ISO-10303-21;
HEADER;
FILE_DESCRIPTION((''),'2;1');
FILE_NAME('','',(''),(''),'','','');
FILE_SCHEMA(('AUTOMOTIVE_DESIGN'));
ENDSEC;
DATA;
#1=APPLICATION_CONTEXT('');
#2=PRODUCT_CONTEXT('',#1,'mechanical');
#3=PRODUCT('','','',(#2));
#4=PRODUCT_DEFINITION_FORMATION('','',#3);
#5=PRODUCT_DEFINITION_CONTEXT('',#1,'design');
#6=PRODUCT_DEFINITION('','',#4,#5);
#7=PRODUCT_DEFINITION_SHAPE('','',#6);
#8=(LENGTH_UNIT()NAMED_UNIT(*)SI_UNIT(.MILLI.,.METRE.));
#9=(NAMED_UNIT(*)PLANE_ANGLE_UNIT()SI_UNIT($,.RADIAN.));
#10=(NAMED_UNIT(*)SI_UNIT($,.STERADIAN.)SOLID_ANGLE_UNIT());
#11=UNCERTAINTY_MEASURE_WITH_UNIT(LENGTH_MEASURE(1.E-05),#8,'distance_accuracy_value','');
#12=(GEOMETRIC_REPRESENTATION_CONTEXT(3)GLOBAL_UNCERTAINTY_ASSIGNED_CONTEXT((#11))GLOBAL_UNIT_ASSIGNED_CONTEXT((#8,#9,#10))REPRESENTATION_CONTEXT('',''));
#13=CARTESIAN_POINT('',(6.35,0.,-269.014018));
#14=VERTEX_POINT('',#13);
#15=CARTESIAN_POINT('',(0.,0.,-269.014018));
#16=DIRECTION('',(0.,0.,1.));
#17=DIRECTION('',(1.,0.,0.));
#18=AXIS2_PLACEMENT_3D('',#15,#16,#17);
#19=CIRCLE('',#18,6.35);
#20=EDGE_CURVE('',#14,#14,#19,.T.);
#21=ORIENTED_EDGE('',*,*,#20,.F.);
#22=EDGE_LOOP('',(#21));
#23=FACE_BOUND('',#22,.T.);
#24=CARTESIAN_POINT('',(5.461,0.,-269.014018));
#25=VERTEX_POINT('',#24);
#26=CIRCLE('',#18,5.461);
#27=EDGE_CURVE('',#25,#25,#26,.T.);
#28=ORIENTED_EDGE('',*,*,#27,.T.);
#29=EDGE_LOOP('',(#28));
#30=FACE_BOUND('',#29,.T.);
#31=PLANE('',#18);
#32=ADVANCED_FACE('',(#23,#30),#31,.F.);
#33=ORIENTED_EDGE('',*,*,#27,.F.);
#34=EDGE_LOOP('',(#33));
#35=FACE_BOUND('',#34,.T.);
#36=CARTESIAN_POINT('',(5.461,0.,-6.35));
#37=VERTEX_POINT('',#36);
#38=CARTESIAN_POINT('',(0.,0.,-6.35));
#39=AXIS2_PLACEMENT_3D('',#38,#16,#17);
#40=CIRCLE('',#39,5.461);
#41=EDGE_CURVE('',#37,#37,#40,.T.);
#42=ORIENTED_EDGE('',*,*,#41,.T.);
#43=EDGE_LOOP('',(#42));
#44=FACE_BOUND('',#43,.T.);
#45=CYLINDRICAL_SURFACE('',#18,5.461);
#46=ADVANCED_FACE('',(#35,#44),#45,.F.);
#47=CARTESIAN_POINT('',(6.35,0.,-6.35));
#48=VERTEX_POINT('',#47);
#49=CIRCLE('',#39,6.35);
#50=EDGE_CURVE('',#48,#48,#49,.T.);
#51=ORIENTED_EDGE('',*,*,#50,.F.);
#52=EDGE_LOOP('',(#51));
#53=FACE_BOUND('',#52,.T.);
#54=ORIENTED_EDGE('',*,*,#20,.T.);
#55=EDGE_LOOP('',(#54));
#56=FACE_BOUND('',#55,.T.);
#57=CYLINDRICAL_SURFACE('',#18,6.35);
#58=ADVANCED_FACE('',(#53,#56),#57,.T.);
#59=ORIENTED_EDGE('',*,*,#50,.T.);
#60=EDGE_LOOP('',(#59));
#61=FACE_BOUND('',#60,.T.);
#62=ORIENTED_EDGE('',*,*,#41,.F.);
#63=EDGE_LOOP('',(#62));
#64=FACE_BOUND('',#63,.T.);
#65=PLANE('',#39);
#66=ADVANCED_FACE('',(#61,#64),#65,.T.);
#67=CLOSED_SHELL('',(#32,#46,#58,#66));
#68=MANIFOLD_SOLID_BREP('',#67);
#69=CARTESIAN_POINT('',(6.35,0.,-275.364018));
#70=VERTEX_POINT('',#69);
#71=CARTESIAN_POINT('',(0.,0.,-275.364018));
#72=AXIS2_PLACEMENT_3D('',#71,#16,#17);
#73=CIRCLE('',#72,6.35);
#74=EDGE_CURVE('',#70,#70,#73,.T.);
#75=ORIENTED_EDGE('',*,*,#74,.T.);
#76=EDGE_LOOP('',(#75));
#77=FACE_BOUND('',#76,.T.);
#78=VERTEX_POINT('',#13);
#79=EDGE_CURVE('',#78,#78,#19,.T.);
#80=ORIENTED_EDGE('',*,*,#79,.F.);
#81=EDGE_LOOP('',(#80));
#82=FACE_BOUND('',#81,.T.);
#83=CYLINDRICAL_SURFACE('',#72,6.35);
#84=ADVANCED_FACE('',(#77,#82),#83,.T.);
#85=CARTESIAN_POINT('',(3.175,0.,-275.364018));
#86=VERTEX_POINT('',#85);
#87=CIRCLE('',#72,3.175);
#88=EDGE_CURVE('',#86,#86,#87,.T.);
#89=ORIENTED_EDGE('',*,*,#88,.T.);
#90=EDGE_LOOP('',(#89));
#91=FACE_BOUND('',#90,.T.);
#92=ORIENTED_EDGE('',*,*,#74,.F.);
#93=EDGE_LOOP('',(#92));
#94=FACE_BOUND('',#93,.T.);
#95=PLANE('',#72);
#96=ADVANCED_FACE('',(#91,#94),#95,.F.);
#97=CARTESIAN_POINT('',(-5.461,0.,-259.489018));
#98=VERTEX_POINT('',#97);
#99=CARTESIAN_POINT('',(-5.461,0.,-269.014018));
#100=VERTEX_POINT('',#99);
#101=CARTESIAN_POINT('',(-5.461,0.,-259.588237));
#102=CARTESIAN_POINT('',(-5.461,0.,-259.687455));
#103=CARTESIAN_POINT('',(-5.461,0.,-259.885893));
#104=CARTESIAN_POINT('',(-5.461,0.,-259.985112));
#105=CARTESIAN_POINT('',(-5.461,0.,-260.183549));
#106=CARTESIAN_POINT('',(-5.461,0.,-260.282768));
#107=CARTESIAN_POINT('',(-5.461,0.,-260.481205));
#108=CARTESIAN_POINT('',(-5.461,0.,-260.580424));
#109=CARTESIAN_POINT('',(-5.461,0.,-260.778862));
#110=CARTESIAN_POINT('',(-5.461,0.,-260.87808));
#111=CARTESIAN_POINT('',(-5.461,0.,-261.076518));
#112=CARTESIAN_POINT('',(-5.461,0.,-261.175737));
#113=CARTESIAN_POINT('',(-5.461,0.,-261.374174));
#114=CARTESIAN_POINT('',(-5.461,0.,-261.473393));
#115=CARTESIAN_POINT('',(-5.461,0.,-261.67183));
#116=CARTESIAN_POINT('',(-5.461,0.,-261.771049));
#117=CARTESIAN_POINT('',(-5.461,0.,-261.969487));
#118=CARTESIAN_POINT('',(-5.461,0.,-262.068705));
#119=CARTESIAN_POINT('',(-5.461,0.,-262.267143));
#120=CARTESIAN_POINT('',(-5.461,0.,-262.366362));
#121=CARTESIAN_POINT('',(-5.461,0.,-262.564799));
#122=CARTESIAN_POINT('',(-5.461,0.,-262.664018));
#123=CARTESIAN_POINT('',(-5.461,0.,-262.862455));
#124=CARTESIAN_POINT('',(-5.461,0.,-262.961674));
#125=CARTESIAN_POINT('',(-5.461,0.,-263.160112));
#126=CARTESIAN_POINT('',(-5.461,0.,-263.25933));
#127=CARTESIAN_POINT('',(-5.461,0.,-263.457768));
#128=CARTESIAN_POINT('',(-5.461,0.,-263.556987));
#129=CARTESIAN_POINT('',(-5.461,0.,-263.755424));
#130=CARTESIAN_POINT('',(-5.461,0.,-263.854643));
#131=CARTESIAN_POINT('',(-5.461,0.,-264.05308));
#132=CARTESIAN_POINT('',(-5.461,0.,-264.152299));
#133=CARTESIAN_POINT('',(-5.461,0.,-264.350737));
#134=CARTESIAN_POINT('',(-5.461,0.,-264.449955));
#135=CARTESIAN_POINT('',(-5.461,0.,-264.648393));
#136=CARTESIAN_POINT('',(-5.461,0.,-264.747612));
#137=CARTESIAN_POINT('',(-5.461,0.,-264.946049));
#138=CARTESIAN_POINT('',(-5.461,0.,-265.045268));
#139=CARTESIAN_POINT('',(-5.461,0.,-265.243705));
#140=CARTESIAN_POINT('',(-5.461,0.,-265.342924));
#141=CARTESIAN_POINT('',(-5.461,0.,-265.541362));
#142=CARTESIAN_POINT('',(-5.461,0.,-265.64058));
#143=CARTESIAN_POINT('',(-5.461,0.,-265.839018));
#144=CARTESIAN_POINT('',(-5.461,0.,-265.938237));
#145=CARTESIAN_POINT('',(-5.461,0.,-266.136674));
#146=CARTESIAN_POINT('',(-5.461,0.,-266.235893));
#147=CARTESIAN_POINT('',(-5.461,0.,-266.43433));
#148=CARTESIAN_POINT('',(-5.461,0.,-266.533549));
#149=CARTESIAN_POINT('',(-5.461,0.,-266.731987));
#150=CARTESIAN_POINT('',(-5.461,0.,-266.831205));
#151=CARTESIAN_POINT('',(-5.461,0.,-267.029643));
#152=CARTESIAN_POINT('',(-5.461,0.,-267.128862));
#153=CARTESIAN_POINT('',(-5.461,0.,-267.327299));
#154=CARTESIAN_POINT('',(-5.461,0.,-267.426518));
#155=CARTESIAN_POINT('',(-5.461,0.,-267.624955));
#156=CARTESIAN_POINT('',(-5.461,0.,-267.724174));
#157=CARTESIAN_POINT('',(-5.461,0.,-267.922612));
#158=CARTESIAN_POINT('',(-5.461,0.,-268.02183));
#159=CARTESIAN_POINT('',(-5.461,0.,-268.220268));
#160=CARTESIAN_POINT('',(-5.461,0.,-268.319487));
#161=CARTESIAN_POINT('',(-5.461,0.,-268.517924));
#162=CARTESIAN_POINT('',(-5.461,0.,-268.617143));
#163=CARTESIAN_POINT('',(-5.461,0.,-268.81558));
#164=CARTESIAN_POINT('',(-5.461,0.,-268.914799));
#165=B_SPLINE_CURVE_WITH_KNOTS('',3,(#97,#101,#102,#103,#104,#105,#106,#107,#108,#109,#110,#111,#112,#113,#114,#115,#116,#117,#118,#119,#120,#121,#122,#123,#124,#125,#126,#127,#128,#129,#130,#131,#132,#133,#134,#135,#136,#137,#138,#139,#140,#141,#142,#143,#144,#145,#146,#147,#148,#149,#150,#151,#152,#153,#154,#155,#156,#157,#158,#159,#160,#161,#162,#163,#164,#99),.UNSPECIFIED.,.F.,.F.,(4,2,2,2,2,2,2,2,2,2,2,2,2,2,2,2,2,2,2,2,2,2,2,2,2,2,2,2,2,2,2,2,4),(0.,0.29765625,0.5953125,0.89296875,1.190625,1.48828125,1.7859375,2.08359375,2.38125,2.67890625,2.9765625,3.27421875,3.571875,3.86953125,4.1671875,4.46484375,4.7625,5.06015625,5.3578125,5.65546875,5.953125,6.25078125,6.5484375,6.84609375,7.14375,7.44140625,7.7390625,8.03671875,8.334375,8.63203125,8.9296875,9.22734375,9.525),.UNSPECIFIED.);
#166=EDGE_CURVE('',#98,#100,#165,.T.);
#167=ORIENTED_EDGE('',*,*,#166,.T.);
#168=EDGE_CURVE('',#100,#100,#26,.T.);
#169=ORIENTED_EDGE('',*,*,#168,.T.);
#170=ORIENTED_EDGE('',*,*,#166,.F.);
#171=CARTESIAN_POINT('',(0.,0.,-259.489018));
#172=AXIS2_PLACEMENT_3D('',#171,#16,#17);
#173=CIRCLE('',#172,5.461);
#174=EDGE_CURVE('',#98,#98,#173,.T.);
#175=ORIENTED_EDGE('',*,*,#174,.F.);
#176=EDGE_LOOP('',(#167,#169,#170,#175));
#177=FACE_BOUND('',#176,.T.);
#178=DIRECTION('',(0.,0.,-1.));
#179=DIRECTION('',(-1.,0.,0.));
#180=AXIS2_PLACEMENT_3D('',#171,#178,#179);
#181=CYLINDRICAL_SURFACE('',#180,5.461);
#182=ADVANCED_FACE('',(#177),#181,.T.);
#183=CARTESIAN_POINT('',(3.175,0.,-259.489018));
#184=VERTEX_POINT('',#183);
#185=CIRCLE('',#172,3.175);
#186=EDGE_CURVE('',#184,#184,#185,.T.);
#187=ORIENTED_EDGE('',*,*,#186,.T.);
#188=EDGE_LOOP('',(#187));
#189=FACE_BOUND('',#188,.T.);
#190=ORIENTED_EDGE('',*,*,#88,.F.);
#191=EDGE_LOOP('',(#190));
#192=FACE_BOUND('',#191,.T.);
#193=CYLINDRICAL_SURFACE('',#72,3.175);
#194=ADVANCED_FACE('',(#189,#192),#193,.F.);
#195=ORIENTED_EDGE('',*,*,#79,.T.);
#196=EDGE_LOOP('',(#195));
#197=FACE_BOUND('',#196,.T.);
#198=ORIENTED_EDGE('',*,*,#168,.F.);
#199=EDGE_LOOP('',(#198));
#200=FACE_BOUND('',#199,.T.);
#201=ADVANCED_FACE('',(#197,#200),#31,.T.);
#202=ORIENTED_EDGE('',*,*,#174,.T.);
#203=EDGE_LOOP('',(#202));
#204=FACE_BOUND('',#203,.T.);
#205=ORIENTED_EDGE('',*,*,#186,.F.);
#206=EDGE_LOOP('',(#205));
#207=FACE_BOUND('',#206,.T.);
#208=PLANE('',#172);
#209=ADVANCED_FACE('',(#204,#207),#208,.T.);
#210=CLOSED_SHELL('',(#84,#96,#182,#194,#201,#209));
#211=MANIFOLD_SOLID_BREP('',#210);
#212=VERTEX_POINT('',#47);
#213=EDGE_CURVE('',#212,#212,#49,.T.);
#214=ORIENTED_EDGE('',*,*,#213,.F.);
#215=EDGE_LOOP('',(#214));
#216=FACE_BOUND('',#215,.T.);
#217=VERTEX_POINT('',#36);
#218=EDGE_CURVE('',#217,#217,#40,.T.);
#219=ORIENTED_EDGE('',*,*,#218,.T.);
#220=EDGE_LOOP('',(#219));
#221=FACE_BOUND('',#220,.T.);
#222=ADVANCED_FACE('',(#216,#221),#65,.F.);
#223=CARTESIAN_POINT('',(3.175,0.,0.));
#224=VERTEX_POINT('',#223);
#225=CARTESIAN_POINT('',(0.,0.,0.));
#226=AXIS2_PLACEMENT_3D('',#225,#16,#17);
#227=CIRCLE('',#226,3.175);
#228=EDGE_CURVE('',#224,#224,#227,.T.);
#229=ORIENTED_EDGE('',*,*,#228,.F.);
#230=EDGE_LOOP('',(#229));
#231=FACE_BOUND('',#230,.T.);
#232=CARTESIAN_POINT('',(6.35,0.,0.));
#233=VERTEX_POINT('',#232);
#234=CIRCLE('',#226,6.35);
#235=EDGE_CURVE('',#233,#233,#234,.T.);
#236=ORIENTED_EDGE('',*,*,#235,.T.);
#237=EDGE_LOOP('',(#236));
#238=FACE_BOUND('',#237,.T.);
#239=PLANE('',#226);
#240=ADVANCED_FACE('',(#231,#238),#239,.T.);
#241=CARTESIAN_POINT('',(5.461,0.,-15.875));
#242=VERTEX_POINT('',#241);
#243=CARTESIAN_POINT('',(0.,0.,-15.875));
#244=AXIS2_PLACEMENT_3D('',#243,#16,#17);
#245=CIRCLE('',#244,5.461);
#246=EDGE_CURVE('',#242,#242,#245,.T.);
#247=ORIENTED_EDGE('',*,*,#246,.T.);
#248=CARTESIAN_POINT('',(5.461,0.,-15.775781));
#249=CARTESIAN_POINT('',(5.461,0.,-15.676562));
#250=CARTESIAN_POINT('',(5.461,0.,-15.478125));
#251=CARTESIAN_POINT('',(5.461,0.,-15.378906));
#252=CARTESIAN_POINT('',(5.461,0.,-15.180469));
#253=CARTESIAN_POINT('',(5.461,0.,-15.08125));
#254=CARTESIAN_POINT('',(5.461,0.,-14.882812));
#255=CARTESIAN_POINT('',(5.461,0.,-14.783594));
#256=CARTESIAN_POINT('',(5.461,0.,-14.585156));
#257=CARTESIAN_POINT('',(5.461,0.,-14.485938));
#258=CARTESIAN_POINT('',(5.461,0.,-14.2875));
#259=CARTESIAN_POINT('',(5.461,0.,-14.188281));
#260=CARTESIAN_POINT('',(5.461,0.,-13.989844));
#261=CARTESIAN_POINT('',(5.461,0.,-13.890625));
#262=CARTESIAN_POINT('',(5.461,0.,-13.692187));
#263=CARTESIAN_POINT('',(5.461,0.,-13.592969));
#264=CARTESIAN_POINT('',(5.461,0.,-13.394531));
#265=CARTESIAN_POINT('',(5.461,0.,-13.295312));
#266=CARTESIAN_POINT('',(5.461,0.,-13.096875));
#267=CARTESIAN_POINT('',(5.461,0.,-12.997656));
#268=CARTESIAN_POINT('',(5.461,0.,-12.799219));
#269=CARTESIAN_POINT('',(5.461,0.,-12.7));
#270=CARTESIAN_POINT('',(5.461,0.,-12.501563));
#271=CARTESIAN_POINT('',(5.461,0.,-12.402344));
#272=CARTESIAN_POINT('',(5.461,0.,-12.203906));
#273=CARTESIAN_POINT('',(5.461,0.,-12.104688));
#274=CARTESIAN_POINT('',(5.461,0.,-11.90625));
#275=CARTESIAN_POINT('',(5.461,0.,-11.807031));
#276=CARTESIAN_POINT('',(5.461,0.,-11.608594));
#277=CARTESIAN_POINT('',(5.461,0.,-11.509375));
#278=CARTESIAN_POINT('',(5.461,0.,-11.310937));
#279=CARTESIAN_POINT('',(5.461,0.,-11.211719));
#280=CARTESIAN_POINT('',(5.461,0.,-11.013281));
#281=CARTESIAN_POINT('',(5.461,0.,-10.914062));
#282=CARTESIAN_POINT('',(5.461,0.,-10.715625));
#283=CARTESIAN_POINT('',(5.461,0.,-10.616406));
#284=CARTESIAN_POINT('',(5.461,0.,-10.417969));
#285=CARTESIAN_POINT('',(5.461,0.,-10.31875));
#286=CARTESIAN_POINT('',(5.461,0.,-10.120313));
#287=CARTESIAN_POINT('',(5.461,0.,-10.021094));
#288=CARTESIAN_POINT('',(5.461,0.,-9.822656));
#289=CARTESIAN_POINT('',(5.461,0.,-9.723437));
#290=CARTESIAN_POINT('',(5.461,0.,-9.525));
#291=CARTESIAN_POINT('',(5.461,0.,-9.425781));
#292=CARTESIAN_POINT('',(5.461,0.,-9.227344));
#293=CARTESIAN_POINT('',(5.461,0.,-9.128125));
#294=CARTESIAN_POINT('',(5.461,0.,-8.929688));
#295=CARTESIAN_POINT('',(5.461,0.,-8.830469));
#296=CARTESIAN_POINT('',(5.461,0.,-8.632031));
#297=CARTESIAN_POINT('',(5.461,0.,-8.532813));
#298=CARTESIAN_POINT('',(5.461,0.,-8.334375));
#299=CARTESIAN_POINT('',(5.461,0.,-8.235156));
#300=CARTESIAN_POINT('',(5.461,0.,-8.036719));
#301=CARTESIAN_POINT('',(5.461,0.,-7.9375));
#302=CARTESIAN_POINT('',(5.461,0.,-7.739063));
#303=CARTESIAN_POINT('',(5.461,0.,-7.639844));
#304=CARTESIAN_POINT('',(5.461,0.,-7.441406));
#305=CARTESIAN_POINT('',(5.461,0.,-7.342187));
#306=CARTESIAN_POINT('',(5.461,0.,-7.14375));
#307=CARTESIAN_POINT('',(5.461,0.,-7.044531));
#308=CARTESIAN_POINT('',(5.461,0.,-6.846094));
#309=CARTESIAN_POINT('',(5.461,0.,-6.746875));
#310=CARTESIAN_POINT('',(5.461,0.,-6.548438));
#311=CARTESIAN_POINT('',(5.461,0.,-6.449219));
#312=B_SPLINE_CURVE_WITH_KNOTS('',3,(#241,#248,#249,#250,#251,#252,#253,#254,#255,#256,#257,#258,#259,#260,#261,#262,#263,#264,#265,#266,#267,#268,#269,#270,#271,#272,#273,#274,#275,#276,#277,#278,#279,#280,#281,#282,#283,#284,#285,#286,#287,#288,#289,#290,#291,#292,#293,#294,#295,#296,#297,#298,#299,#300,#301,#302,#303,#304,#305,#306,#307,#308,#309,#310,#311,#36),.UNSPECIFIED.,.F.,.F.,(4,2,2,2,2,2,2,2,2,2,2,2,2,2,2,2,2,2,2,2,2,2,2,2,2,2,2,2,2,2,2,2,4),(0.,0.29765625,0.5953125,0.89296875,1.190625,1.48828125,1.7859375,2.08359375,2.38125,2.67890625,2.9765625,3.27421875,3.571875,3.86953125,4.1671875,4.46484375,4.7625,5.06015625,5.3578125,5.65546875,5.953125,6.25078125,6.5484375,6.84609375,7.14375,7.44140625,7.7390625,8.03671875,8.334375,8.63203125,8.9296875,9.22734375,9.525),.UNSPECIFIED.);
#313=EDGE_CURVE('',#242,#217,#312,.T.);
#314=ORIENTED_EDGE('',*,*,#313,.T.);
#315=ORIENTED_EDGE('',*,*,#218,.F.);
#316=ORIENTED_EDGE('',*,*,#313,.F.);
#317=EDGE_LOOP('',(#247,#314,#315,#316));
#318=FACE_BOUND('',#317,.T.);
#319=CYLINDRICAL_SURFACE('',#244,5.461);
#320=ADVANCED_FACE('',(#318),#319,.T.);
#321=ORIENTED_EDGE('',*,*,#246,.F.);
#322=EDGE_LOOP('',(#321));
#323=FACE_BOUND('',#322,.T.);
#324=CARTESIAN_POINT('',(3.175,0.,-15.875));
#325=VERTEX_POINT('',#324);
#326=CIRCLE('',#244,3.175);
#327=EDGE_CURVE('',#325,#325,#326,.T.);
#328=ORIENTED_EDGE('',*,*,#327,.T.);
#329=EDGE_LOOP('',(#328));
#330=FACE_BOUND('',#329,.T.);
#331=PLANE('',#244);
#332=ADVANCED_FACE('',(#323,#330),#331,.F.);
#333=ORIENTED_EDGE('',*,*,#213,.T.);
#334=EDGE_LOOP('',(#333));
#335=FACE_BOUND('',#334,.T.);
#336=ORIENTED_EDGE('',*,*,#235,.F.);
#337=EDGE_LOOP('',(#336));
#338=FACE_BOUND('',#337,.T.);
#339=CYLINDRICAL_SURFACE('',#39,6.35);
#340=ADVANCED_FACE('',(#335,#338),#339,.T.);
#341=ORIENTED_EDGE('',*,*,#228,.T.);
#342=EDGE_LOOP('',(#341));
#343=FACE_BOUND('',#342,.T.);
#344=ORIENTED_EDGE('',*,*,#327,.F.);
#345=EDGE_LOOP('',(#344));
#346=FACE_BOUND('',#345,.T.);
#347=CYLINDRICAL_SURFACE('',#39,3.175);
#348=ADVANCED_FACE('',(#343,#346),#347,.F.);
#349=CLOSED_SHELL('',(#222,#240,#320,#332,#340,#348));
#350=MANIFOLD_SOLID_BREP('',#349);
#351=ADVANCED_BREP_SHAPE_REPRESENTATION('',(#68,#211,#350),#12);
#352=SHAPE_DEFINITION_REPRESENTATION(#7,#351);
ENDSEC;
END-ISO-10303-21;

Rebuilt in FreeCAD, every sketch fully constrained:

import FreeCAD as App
import Part
import Sketcher
Q = App.Units.Quantity

doc = App.newDocument("Part")
body = doc.addObject("PartDesign::Body", "Body")

# Sketch on XY plane
sketch1 = doc.addObject("Sketcher::SketchObject", "Sketch")
body.addObject(sketch1)
sketch1.AttachmentSupport = (doc.XY_Plane, [""])
sketch1.MapMode = "FlatFace"
sketch1.addGeometry([
    Part.Circle(App.Vector(0, 0, 0), App.Vector(0, 0, 1), 6.35),
    Part.Circle(App.Vector(0, 0, 0), App.Vector(0, 0, 1), 3.175),
], False)
sketch1.addConstraint([
    Sketcher.Constraint("Coincident", 0, 3, -1, 1),
    Sketcher.Constraint("Coincident", 1, 3, -1, 1),
    Sketcher.Constraint("Diameter", 0, Q("0.5 in")),
    Sketcher.Constraint("Diameter", 1, Q("0.25 in")),
])
pad1 = doc.addObject("PartDesign::Pad", "Pad")
body.addObject(pad1)
pad1.Profile = sketch1
pad1.Length = Q("0.25 in")
pad1.Reversed = True

# Sketch on XY plane
sketch2 = doc.addObject("Sketcher::SketchObject", "Sketch001")
body.addObject(sketch2)
sketch2.AttachmentSupport = (doc.XY_Plane, [""])
sketch2.MapMode = "FlatFace"
sketch2.AttachmentOffset = App.Placement(App.Vector(0, 0, -0.25 * 25.4), App.Rotation())
sketch2.addGeometry([
    Part.Circle(App.Vector(0, 0, 0), App.Vector(0, 0, 1), 5.461),
    Part.Circle(App.Vector(0, 0, 0), App.Vector(0, 0, 1), 3.175),
], False)
sketch2.addConstraint([
    Sketcher.Constraint("Coincident", 0, 3, -1, 1),
    Sketcher.Constraint("Coincident", 1, 3, -1, 1),
    Sketcher.Constraint("Diameter", 0, Q("0.43 in")),
    Sketcher.Constraint("Diameter", 1, Q("0.25 in")),
])
pad2 = doc.addObject("PartDesign::Pad", "Pad001")
body.addObject(pad2)
pad2.Profile = sketch2
pad2.Length = Q("0.375 in")
pad2.Reversed = True
body2 = doc.addObject("PartDesign::Body", "Body001")

# Sketch on XY plane
sketch3 = doc.addObject("Sketcher::SketchObject", "Sketch002")
body2.addObject(sketch3)
sketch3.AttachmentSupport = (doc.getObject("XY_Plane001"), [""])
sketch3.MapMode = "FlatFace"
sketch3.AttachmentOffset = App.Placement(App.Vector(0, 0, -0.25 * 25.4), App.Rotation())
sketch3.addGeometry([
    Part.Circle(App.Vector(0, 0, 0), App.Vector(0, 0, 1), 6.35),
    Part.Circle(App.Vector(0, 0, 0), App.Vector(0, 0, 1), 5.461),
], False)
sketch3.addConstraint([
    Sketcher.Constraint("Coincident", 0, 3, -1, 1),
    Sketcher.Constraint("Coincident", 1, 3, -1, 1),
    Sketcher.Constraint("Diameter", 0, Q("0.5 in")),
    Sketcher.Constraint("Diameter", 1, Q("0.43 in")),
])
pad3 = doc.addObject("PartDesign::Pad", "Pad002")
body2.addObject(pad3)
pad3.Profile = sketch3
pad3.Length = 262.664018
pad3.Reversed = True
body3 = doc.addObject("PartDesign::Body", "Body002")

# Sketch on XY plane
sketch4 = doc.addObject("Sketcher::SketchObject", "Sketch003")
body3.addObject(sketch4)
sketch4.AttachmentSupport = (doc.getObject("XY_Plane002"), [""])
sketch4.MapMode = "FlatFace"
sketch4.AttachmentOffset = App.Placement(App.Vector(0, 0, -269.014018), App.Rotation())
sketch4.addGeometry([
    Part.Circle(App.Vector(0, 0, 0), App.Vector(0, 0, 1), 5.461),
    Part.Circle(App.Vector(0, 0, 0), App.Vector(0, 0, 1), 3.175),
], False)
sketch4.addConstraint([
    Sketcher.Constraint("Coincident", 0, 3, -1, 1),
    Sketcher.Constraint("Coincident", 1, 3, -1, 1),
    Sketcher.Constraint("Diameter", 0, Q("0.43 in")),
    Sketcher.Constraint("Diameter", 1, Q("0.25 in")),
])
pad4 = doc.addObject("PartDesign::Pad", "Pad003")
body3.addObject(pad4)
pad4.Profile = sketch4
pad4.Length = Q("0.375 in")
body4 = doc.addObject("PartDesign::Body", "Body003")

# Sketch on XY plane
sketch5 = doc.addObject("Sketcher::SketchObject", "Sketch004")
body4.addObject(sketch5)
sketch5.AttachmentSupport = (doc.getObject("XY_Plane003"), [""])
sketch5.MapMode = "FlatFace"
sketch5.AttachmentOffset = App.Placement(App.Vector(0, 0, -269.014018), App.Rotation())
sketch5.addGeometry([
    Part.Circle(App.Vector(0, 0, 0), App.Vector(0, 0, 1), 6.35),
    Part.Circle(App.Vector(0, 0, 0), App.Vector(0, 0, 1), 3.175),
], False)
sketch5.addConstraint([
    Sketcher.Constraint("Coincident", 0, 3, -1, 1),
    Sketcher.Constraint("Coincident", 1, 3, -1, 1),
    Sketcher.Constraint("Diameter", 0, Q("0.5 in")),
    Sketcher.Constraint("Diameter", 1, Q("0.25 in")),
])
pad5 = doc.addObject("PartDesign::Pad", "Pad004")
body4.addObject(pad5)
pad5.Profile = sketch5
pad5.Length = Q("0.25 in")
pad5.Reversed = True
doc.recompute()

boolean = doc.addObject("PartDesign::Boolean", "Boolean")
body4.addObject(boolean)
boolean.Type = "Fuse"
boolean.addObjects([body3])

doc.recompute()
